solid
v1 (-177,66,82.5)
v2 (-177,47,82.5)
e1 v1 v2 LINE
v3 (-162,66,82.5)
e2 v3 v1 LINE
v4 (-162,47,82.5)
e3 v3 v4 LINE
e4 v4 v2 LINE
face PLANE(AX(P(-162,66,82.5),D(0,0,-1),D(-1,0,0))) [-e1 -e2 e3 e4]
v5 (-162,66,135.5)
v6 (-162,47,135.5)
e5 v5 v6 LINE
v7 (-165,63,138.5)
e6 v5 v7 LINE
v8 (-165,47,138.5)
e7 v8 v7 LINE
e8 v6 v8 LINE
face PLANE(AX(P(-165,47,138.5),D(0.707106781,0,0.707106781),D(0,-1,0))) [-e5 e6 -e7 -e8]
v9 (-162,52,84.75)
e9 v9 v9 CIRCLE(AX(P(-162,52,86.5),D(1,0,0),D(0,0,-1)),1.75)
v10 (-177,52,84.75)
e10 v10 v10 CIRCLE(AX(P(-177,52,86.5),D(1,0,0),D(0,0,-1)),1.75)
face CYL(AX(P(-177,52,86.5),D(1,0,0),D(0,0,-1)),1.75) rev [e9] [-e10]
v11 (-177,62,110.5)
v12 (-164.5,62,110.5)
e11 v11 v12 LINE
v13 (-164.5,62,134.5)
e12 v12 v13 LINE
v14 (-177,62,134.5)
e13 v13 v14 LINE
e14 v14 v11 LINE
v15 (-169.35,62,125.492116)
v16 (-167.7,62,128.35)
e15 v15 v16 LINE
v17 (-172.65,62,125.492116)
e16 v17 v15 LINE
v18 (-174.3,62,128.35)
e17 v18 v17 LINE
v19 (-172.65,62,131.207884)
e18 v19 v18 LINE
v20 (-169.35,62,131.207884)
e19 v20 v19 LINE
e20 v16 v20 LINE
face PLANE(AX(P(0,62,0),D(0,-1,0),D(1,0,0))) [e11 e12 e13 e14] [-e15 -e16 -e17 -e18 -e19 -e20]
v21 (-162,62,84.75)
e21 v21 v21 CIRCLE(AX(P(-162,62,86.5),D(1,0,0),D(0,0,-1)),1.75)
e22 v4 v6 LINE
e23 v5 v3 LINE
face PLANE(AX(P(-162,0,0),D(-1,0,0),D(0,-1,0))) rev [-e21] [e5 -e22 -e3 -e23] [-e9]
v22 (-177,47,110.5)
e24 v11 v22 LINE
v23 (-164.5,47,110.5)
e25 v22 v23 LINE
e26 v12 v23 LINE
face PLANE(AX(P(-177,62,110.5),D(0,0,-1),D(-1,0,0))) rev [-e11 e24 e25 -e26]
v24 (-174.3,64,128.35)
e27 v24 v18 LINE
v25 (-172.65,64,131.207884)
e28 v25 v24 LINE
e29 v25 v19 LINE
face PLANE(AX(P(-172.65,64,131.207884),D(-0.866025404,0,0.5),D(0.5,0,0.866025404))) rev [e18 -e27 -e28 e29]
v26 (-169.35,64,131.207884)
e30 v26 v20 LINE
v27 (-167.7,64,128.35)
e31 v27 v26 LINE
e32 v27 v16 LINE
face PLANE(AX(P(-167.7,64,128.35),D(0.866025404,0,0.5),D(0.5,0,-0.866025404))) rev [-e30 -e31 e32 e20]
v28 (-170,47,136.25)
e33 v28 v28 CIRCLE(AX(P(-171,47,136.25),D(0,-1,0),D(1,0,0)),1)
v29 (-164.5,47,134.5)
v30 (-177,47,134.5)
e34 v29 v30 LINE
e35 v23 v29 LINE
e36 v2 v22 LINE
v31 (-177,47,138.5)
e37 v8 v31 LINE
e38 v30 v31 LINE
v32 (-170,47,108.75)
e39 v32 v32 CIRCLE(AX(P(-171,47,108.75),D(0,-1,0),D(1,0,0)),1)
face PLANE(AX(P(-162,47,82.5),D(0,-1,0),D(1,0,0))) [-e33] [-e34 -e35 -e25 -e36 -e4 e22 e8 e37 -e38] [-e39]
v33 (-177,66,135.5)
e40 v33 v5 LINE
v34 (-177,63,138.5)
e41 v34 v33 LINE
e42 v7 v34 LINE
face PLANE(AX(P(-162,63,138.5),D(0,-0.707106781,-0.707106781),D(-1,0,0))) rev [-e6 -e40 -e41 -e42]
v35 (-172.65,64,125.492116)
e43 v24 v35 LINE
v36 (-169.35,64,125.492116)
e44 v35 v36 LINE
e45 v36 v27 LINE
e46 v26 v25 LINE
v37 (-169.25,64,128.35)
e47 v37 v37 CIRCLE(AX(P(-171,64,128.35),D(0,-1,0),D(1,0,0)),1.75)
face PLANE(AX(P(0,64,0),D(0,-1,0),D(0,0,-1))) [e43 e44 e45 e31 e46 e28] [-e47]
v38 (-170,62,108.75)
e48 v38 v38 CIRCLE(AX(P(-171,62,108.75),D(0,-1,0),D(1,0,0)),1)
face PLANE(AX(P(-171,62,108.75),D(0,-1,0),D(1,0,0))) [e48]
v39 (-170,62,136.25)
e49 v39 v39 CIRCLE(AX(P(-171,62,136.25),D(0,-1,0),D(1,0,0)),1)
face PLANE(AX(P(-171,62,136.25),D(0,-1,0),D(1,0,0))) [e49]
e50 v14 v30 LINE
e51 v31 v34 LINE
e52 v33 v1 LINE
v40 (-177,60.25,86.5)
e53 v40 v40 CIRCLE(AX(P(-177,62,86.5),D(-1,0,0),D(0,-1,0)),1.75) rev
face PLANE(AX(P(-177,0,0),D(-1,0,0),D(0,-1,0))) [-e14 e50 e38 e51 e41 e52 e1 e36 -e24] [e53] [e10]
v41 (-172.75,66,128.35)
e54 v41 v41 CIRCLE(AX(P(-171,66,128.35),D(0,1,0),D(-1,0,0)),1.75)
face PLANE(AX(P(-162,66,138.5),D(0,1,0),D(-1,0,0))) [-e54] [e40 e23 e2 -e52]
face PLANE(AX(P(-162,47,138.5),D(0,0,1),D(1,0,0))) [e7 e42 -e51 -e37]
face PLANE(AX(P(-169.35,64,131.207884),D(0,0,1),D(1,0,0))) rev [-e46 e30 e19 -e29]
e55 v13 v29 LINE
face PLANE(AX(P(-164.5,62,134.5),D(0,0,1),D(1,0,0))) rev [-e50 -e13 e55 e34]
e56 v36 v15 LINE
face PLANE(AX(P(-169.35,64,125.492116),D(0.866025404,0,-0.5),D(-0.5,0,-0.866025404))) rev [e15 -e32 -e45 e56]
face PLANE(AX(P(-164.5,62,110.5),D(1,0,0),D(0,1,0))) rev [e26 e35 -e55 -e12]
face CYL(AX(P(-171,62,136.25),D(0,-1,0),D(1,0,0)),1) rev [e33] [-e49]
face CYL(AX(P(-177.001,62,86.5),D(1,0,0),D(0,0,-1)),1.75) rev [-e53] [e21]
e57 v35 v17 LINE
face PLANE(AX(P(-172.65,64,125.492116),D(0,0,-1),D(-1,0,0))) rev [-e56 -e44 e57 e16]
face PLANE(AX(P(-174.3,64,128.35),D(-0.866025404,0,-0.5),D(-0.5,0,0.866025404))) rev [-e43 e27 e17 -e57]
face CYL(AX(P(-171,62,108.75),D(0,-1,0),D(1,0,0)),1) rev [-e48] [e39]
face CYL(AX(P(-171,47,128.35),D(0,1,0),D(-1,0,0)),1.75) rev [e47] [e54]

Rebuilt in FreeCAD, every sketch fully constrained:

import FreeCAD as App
import Part
import Sketcher

V = App.Vector
Q = App.Units.Quantity


def edges_at(feature, points):
    """Names of the edges that pass closest to the given points."""
    edges = feature.Shape.Edges
    near = lambda p: min(range(len(edges)), key=lambda i: edges[i].distToShape(Part.Vertex(*p))[0])
    return sorted({f"Edge{near(p) + 1}" for p in points})


def add_polygon(sketch, points):
    """Adds a closed chain of lines whose ends are joined by coincident constraints."""
    first, n = sketch.GeometryCount, len(points)
    for a, b in zip(points, points[1:] + points[:1]):
        sketch.addGeometry(Part.LineSegment(App.Vector(*a, 0), App.Vector(*b, 0)), False)
    for i in range(n):
        sketch.addConstraint(Sketcher.Constraint("Coincident", first + i, 2, first + (i + 1) % n, 1))

doc = App.newDocument("Part")
body = doc.addObject("PartDesign::Body", "Body")

# Sketch on YZ plane
sketch1 = body.newObject("Sketcher::SketchObject", "Sketch")
sketch1.AttachmentSupport = (doc.getObject("YZ_Plane"), [""])
sketch1.MapMode = "FlatFace"
sketch1.AttachmentOffset = App.Placement(V(0, 0, -177), App.Rotation())
add_polygon(sketch1, [(66, 138), (66, 82), (47, 82), (47, 138)])  # lines 0-3
sketch1.addConstraint(Sketcher.Constraint("Vertical", 0))
sketch1.addConstraint(Sketcher.Constraint("Horizontal", 1))
sketch1.addConstraint(Sketcher.Constraint("Vertical", 2))
sketch1.addConstraint(Sketcher.Constraint("Horizontal", 3))
sketch1.addConstraint(Sketcher.Constraint("DistanceX", 1, 2, 1, 1, Q("19 mm")))
sketch1.addConstraint(Sketcher.Constraint("DistanceY", 0, 2, 0, 1, Q("56 mm")))
sketch1.addConstraint(Sketcher.Constraint("DistanceX", -1, 1, 0, 2, Q("66 mm")))
sketch1.addConstraint(Sketcher.Constraint("DistanceY", -1, 1, 0, 2, Q("82.5 mm")))
pad1 = body.newObject("PartDesign::Pad", "Pad")
pad1.Profile = sketch1
pad1.Length = 15
doc.recompute()

chamfer = body.newObject("PartDesign::Chamfer", "Chamfer")
chamfer.Base = (pad1, edges_at(pad1, [(-162, 56.5, 138.5), (-169.5, 66, 138.5)]))
chamfer.Size = 3

# Sketch on XZ plane
sketch2 = body.newObject("Sketcher::SketchObject", "Sketch001")
sketch2.AttachmentSupport = (doc.getObject("XZ_Plane"), [""])
sketch2.MapMode = "FlatFace"
sketch2.AttachmentOffset = App.Placement(V(0, 0, -47), App.Rotation())
add_polygon(sketch2, [(-177, 134), (-177, 110), (-164, 110), (-164, 134)])  # lines 0-3
sketch2.addConstraint(Sketcher.Constraint("Vertical", 0))
sketch2.addConstraint(Sketcher.Constraint("Horizontal", 1))
sketch2.addConstraint(Sketcher.Constraint("Vertical", 2))
sketch2.addConstraint(Sketcher.Constraint("Horizontal", 3))
sketch2.addConstraint(Sketcher.Constraint("DistanceY", 0, 2, 0, 1, Q("24 mm")))
sketch2.addConstraint(Sketcher.Constraint("DistanceX", 1, 1, 1, 2, Q("12.5 mm")))
sketch2.addConstraint(Sketcher.Constraint("DistanceX", 0, 2, -1, 1, Q("177 mm")))
sketch2.addConstraint(Sketcher.Constraint("DistanceY", -1, 1, 0, 2, Q("110.5 mm")))
pocket1 = body.newObject("PartDesign::Pocket", "Pocket")
pocket1.Profile = sketch2
pocket1.Length = 15

# Sketch on XZ plane
sketch3 = body.newObject("Sketcher::SketchObject", "Sketch002")
sketch3.AttachmentSupport = (doc.getObject("XZ_Plane"), [""])
sketch3.MapMode = "FlatFace"
sketch3.AttachmentOffset = App.Placement(V(0, 0, -47), App.Rotation())
sketch3.addGeometry(Part.Circle(V(-171, 136.2, 0), V(0, 0, 1), 1), False)
sketch3.addConstraint(Sketcher.Constraint("Diameter", 0, Q("2 mm")))
sketch3.addConstraint(Sketcher.Constraint("DistanceX", 0, 3, -1, 1, Q("171 mm")))
sketch3.addConstraint(Sketcher.Constraint("DistanceY", -1, 1, 0, 3, Q("136.25 mm")))
pocket2 = body.newObject("PartDesign::Pocket", "Pocket001")
pocket2.Profile = sketch3
pocket2.Length = 15

# Sketch on XZ plane
sketch4 = body.newObject("Sketcher::SketchObject", "Sketch003")
sketch4.AttachmentSupport = (doc.getObject("XZ_Plane"), [""])
sketch4.MapMode = "FlatFace"
sketch4.AttachmentOffset = App.Placement(V(0, 0, -47), App.Rotation())
sketch4.addGeometry(Part.Circle(V(-171, 108.8, 0), V(0, 0, 1), 1), False)
sketch4.addConstraint(Sketcher.Constraint("Diameter", 0, Q("2 mm")))
sketch4.addConstraint(Sketcher.Constraint("DistanceX", 0, 3, -1, 1, Q("171 mm")))
sketch4.addConstraint(Sketcher.Constraint("DistanceY", -1, 1, 0, 3, Q("108.75 mm")))
pocket3 = body.newObject("PartDesign::Pocket", "Pocket002")
pocket3.Profile = sketch4
pocket3.Length = 15

# Sketch on YZ plane
sketch5 = body.newObject("Sketcher::SketchObject", "Sketch004")
sketch5.AttachmentSupport = (doc.getObject("YZ_Plane"), [""])
sketch5.MapMode = "FlatFace"
sketch5.AttachmentOffset = App.Placement(V(0, 0, -162), App.Rotation())
sketch5.addGeometry(Part.Circle(V(52, 86.5, 0), V(0, 0, 1), 1.8), False)
sketch5.addConstraint(Sketcher.Constraint("Diameter", 0, Q("3.5 mm")))
sketch5.addConstraint(Sketcher.Constraint("DistanceX", -1, 1, 0, 3, Q("52 mm")))
sketch5.addConstraint(Sketcher.Constraint("DistanceY", -1, 1, 0, 3, Q("86.5 mm")))
pocket4 = body.newObject("PartDesign::Pocket", "Pocket003")
pocket4.Profile = sketch5
pocket4.Type = "ThroughAll"

# Sketch on YZ plane
sketch6 = body.newObject("Sketcher::SketchObject", "Sketch005")
sketch6.AttachmentSupport = (doc.getObject("YZ_Plane"), [""])
sketch6.MapMode = "FlatFace"
sketch6.AttachmentOffset = App.Placement(V(0, 0, -162), App.Rotation())
sketch6.addGeometry(Part.Circle(V(62, 86.5, 0), V(0, 0, 1), 1.8), False)
sketch6.addConstraint(Sketcher.Constraint("Diameter", 0, Q("3.5 mm")))
sketch6.addConstraint(Sketcher.Constraint("DistanceX", -1, 1, 0, 3, Q("62 mm")))
sketch6.addConstraint(Sketcher.Constraint("DistanceY", -1, 1, 0, 3, Q("86.5 mm")))
pocket5 = body.newObject("PartDesign::Pocket", "Pocket004")
pocket5.Profile = sketch6
pocket5.Type = "UpToFirst"

# Sketch on XZ plane
sketch7 = body.newObject("Sketcher::SketchObject", "Sketch006")
sketch7.AttachmentSupport = (doc.getObject("XZ_Plane"), [""])
sketch7.MapMode = "FlatFace"
sketch7.AttachmentOffset = App.Placement(V(0, 0, -66), App.Rotation())
sketch7.addGeometry(Part.Circle(V(-171, 128.3, 0), V(0, 0, 1), 1.8), False)
sketch7.addConstraint(Sketcher.Constraint("Diameter", 0, Q("3.5 mm")))
sketch7.addConstraint(Sketcher.Constraint("DistanceX", 0, 3, -1, 1, Q("171 mm")))
sketch7.addConstraint(Sketcher.Constraint("DistanceY", -1, 1, 0, 3, Q("128.35 mm")))
pocket6 = body.newObject("PartDesign::Pocket", "Pocket005")
pocket6.Profile = sketch7
pocket6.Type = "ThroughAll"
pocket6.Reversed = True

# Sketch on XZ plane
sketch8 = body.newObject("Sketcher::SketchObject", "Sketch007")
sketch8.AttachmentSupport = (doc.getObject("XZ_Plane"), [""])
sketch8.MapMode = "FlatFace"
sketch8.AttachmentOffset = App.Placement(V(0, 0, -62), App.Rotation())
add_polygon(sketch8, [(-172.7, 125.5), (-169.3, 125.5), (-167.7, 128.3), (-169.3, 131.2), (-172.7, 131.2), (-174.3, 128.3)])  # lines 0-5
sketch8.addGeometry(Part.Circle(V(-171, 128.3, 0), V(0, 0, 1), 1.8), False)  # 6
sketch8.addConstraint(Sketcher.Constraint("Horizontal", 0))
sketch8.addConstraint(Sketcher.Constraint("Horizontal", 3))
sketch8.addConstraint(Sketcher.Constraint("Parallel", 1, 4))
sketch8.addConstraint(Sketcher.Constraint("Parallel", 2, 5))
sketch8.addConstraint(Sketcher.Constraint("Horizontal", 6, 3, 1, 2))
sketch8.addConstraint(Sketcher.Constraint("Horizontal", 1, 2, 4, 2))
sketch8.addConstraint(Sketcher.Constraint("Vertical", 0, 2, 2, 2))
sketch8.addConstraint(Sketcher.Constraint("Vertical", 3, 2, 5, 2))
sketch8.addConstraint(Sketcher.Constraint("Diameter", 6, Q("3.5 mm")))
sketch8.addConstraint(Sketcher.Constraint("Angle", 1, Q("60 deg")))
sketch8.addConstraint(Sketcher.Constraint("DistanceX", 0, 1, 0, 2, Q("3.3 mm")))
sketch8.addConstraint(Sketcher.Constraint("DistanceX", 6, 3, -1, 1, Q("171 mm")))
sketch8.addConstraint(Sketcher.Constraint("Distance", 1, Q("3.3 mm")))
sketch8.addConstraint(Sketcher.Constraint("DistanceX", 1, 2, -1, 1, Q("167.7 mm")))
sketch8.addConstraint(Sketcher.Constraint("DistanceY", -1, 1, 6, 3, Q("128.35 mm")))
pocket7 = body.newObject("PartDesign::Pocket", "Pocket006")
pocket7.Profile = sketch8
pocket7.Length = 2

doc.recompute()
